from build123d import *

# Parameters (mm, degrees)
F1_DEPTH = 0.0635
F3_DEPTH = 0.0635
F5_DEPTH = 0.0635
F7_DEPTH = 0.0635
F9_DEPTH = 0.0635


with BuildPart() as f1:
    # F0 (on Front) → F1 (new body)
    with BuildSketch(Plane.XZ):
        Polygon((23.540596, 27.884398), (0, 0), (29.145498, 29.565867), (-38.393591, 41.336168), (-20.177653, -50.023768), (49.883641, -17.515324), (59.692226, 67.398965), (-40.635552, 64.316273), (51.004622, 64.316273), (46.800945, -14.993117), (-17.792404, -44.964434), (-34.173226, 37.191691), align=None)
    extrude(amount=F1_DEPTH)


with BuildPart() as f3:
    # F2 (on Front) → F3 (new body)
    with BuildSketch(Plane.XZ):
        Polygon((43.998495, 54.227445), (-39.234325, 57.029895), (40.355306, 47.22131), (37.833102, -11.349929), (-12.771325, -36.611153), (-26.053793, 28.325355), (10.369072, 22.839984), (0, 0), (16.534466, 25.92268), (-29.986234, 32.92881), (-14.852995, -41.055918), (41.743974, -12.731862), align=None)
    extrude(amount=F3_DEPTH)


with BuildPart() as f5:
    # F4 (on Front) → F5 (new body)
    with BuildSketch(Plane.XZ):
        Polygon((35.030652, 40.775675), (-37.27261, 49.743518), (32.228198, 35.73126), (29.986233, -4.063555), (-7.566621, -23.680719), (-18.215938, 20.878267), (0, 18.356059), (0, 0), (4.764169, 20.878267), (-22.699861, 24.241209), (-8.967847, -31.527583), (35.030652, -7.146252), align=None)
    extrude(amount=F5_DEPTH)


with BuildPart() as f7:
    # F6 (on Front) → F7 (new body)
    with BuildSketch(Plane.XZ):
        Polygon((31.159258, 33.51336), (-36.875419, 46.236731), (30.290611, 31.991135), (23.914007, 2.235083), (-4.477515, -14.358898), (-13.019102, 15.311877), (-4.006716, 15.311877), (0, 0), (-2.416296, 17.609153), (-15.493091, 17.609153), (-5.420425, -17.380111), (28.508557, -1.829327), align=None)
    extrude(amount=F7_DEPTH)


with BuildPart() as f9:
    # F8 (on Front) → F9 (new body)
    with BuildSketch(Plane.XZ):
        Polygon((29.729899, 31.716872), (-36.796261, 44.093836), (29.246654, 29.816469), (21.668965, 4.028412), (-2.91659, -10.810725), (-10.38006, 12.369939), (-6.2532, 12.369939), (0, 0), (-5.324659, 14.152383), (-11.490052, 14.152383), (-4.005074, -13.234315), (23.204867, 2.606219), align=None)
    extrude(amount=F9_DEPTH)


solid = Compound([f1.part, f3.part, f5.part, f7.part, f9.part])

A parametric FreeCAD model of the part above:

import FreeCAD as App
import Part
import Sketcher
from FreeCAD import Vector
Q = App.Units.Quantity


def add_polygon(sketch, points):
    """Adds a closed chain of lines whose ends are joined by coincident constraints."""
    first, n = sketch.GeometryCount, len(points)
    for a, b in zip(points, points[1:] + points[:1]):
        sketch.addGeometry(Part.LineSegment(App.Vector(*a, 0), App.Vector(*b, 0)), False)
    for i in range(n):
        sketch.addConstraint(Sketcher.Constraint("Coincident", first + i, 2, first + (i + 1) % n, 1))

doc = App.newDocument("Part")
body = doc.addObject("PartDesign::Body", "Body")

# Sketch on XZ plane
sketch1 = body.newObject("Sketcher::SketchObject", "Sketch")
sketch1.AttachmentSupport = (doc.getObject("XZ_Plane"), [""])
sketch1.MapMode = "FlatFace"
add_polygon(sketch1, [(24, 28), (0, 0), (29, 30), (-38, 41), (-20, -50), (50, -18), (60, 67), (-41, 64), (51, 64), (47, -15), (-18, -45), (-34, 37)])  # lines 0-11
sketch1.addConstraint([
    Sketcher.Constraint("Horizontal", 7),
    Sketcher.Constraint("Coincident", 0, 2, -1, 1),
    Sketcher.Constraint("Parallel", 4, 9),
    Sketcher.Constraint("Parallel", 3, 10),
    Sketcher.Constraint("DistanceX", -1, 1, 1, 2, Q("29.145498 mm")),
    Sketcher.Constraint("DistanceY", -1, 1, 11, 2, Q("27.884398 mm")),
    Sketcher.Constraint("DistanceY", 1, 2, 2, 2, Q("11.770301 mm")),
    Sketcher.Constraint("DistanceY", 1, 2, 5, 2, Q("37.833098 mm")),
    Sketcher.Constraint("DistanceX", 6, 2, 3, 2, Q("20.457899 mm")),
    Sketcher.Constraint("DistanceX", 3, 2, 8, 2, Q("66.978598 mm")),
    Sketcher.Constraint("DistanceY", 9, 2, 1, 2, Q("74.530301 mm")),
    Sketcher.Constraint("DistanceX", 11, 2, 1, 2, Q("5.604902 mm")),
    Sketcher.Constraint("Distance", 1, Q("41.516268 mm")),
    Sketcher.Constraint("Distance", 9, Q("71.208009 mm")),
    Sketcher.Constraint("Distance", 11, Q("58.459481 mm")),
    Sketcher.Constraint("DistanceX", 7, 1, 7, 2, Q("91.640174 mm")),
    Sketcher.Constraint("DistanceX", 2, 2, -1, 1, Q("38.393591 mm")),
    Sketcher.Constraint("DistanceX", -1, 1, 4, 2, Q("49.883641 mm")),
    Sketcher.Constraint("DistanceX", 6, 2, -1, 1, Q("40.635552 mm")),
    Sketcher.Constraint("DistanceY", -1, 1, 10, 2, Q("37.191691 mm")),
    Sketcher.Constraint("DistanceY", 4, 2, 1, 2, Q("47.081191 mm")),
    Sketcher.Constraint("DistanceX", 3, 2, 5, 2, Q("79.869879 mm")),
    Sketcher.Constraint("DistanceY", 3, 2, 6, 2, Q("114.340041 mm")),
])
pad1 = body.newObject("PartDesign::Pad", "Pad")
pad1.Profile = sketch1
pad1.Length = 0.0635
body2 = doc.addObject("PartDesign::Body", "Body001")

# Sketch on XZ plane
sketch2 = body2.newObject("Sketcher::SketchObject", "Sketch001")
sketch2.AttachmentSupport = (doc.getObject("XZ_Plane001"), [""])
sketch2.MapMode = "FlatFace"
add_polygon(sketch2, [(44, 54), (-39, 57), (40, 47), (38, -11), (-13, -37), (-26, 28), (10, 23), (0, 0), (17, 26), (-30, 33), (-15, -41), (42, -13)])  # lines 0-11
sketch2.addConstraint([
    Sketcher.Constraint("Coincident", 6, 2, -1, 1),
    Sketcher.Constraint("Parallel", 5, 8),
    Sketcher.Constraint("Parallel", 4, 9),
    Sketcher.Constraint("Perpendicular", 0, 11),
    Sketcher.Constraint("DistanceX", 0, 2, 3, 2, Q("26.463 mm")),
    Sketcher.Constraint("DistanceX", -1, 1, 2, 2, Q("37.833102 mm")),
    Sketcher.Constraint("DistanceX", 4, 2, 1, 2, Q("66.409099 mm")),
    Sketcher.Constraint("DistanceX", 8, 2, 7, 2, Q("46.5207 mm")),
    Sketcher.Constraint("DistanceX", 3, 2, 10, 2, Q("54.515299 mm")),
    Sketcher.Constraint("Distance", 2, Q("58.62552 mm")),
    Sketcher.Constraint("Distance", 3, Q("56.55915 mm")),
    Sketcher.Constraint("Distance", 6, Q("25.083511 mm")),
    Sketcher.Constraint("Distance", 11, Q("66.997251 mm")),
    Sketcher.Constraint("DistanceY", -1, 1, 1, 2, Q("47.22131 mm")),
    Sketcher.Constraint("DistanceY", 2, 2, -1, 1, Q("11.349929 mm")),
    Sketcher.Constraint("DistanceX", -1, 1, 5, 2, Q("10.369072 mm")),
    Sketcher.Constraint("DistanceY", -1, 1, 7, 2, Q("25.92268 mm")),
    Sketcher.Constraint("DistanceY", -1, 1, 8, 2, Q("32.92881 mm")),
    Sketcher.Constraint("DistanceX", 0, 2, 1, 2, Q("79.589631 mm")),
    Sketcher.Constraint("DistanceY", 3, 2, 0, 2, Q("93.641048 mm")),
    Sketcher.Constraint("DistanceX", 7, 2, 1, 2, Q("23.82084 mm")),
    Sketcher.Constraint("DistanceX", 9, 2, 3, 2, Q("2.08167 mm")),
    Sketcher.Constraint("DistanceY", 3, 2, 10, 2, Q("23.879291 mm")),
])
pad2 = body2.newObject("PartDesign::Pad", "Pad001")
pad2.Profile = sketch2
pad2.Length = 0.0635
body3 = doc.addObject("PartDesign::Body", "Body002")

# Sketch on XZ plane
sketch3 = body3.newObject("Sketcher::SketchObject", "Sketch002")
sketch3.AttachmentSupport = (doc.getObject("XZ_Plane002"), [""])
sketch3.MapMode = "FlatFace"
add_polygon(sketch3, [(35, 41), (-37, 50), (32, 36), (30, -4), (-8, -24), (-18, 21), (0, 18), (0, 0), (5, 21), (-23, 24), (-9, -32), (35, -7)])  # lines 0-11
sketch3.addConstraint([
    Sketcher.Constraint("Vertical", 6),
    Sketcher.Constraint("Vertical", 11),
    Sketcher.Constraint("Coincident", 6, 2, -1, 1),
    Sketcher.Constraint("Horizontal", 4, 2, 7, 2),
    Sketcher.Constraint("DistanceY", 6, 2, 6, 1, Q("18.356059 mm")),
    Sketcher.Constraint("DistanceY", 5, 2, 1, 2, Q("17.375201 mm")),
    Sketcher.Constraint("Distance", 2, Q("39.857919 mm")),
    Sketcher.Constraint("Distance", 3, Q("42.36803 mm")),
    Sketcher.Constraint("Distance", 8, Q("27.669158 mm")),
    Sketcher.Constraint("Distance", 9, Q("57.43454 mm")),
    Sketcher.Constraint("Distance", 10, Q("50.302259 mm")),
    Sketcher.Constraint("DistanceY", 11, 1, 11, 2, Q("47.921927 mm")),
    Sketcher.Constraint("DistanceX", 0, 2, -1, 1, Q("37.27261 mm")),
    Sketcher.Constraint("DistanceY", -1, 1, 0, 2, Q("49.743518 mm")),
    Sketcher.Constraint("DistanceX", 3, 2, -1, 1, Q("7.566621 mm")),
    Sketcher.Constraint("DistanceY", 3, 2, -1, 1, Q("23.680719 mm")),
    Sketcher.Constraint("DistanceX", 4, 2, -1, 1, Q("18.215938 mm")),
    Sketcher.Constraint("DistanceX", -1, 1, 7, 2, Q("4.764169 mm")),
    Sketcher.Constraint("DistanceX", 8, 2, -1, 1, Q("22.699861 mm")),
    Sketcher.Constraint("DistanceY", -1, 1, 8, 2, Q("24.241209 mm")),
    Sketcher.Constraint("DistanceY", 10, 2, -1, 1, Q("7.146252 mm")),
    Sketcher.Constraint("DistanceX", 0, 2, 1, 2, Q("69.500808 mm")),
    Sketcher.Constraint("DistanceX", 9, 2, 2, 2, Q("38.95408 mm")),
])
pad3 = body3.newObject("PartDesign::Pad", "Pad002")
pad3.Profile = sketch3
pad3.Length = 0.0635
body4 = doc.addObject("PartDesign::Body", "Body003")

# Sketch on XZ plane
sketch4 = body4.newObject("Sketcher::SketchObject", "Sketch003")
sketch4.AttachmentSupport = (doc.getObject("XZ_Plane003"), [""])
sketch4.MapMode = "FlatFace"
add_polygon(sketch4, [(31, 34), (-37, 46), (30, 32), (24, 2), (-4, -14), (-13, 15), (-4, 15), (0, 0), (-2, 18), (-15, 18), (-5, -17), (29, -2)])  # lines 0-11
sketch4.addConstraint([
    Sketcher.Constraint("Horizontal", 5),
    Sketcher.Constraint("Horizontal", 8),
    Sketcher.Constraint("Coincident", 6, 2, -1, 1),
    Sketcher.Constraint("Parallel", 4, 9),
    Sketcher.Constraint("Angle", 4, Q("106.059988 deg")),
    Sketcher.Constraint("DistanceX", 3, 2, 5, 2, Q("0.470799 mm")),
    Sketcher.Constraint("DistanceX", 10, 2, 11, 2, Q("2.650701 mm")),
    Sketcher.Constraint("Distance", 0, Q("69.214171 mm")),
    Sketcher.Constraint("Distance", 7, Q("17.77416 mm")),
    Sketcher.Constraint("Distance", 10, Q("37.322951 mm")),
    Sketcher.Constraint("Distance", 11, Q("35.441949 mm")),
    Sketcher.Constraint("DistanceX", 5, 1, 5, 2, Q("9.012386 mm")),
    Sketcher.Constraint("DistanceX", 8, 2, 8, 1, Q("13.076795 mm")),
    Sketcher.Constraint("DistanceX", 0, 2, -1, 1, Q("36.875419 mm")),
    Sketcher.Constraint("DistanceY", -1, 1, 0, 2, Q("46.236731 mm")),
    Sketcher.Constraint("DistanceX", -1, 1, 1, 2, Q("30.290611 mm")),
    Sketcher.Constraint("DistanceX", 8, 2, -1, 1, Q("15.493091 mm")),
    Sketcher.Constraint("DistanceY", 9, 2, -1, 1, Q("17.380111 mm")),
    Sketcher.Constraint("DistanceY", 3, 2, 2, 2, Q("16.593981 mm")),
    Sketcher.Constraint("DistanceY", 3, 2, 0, 2, Q("60.595629 mm")),
    Sketcher.Constraint("DistanceX", 4, 2, 2, 2, Q("36.933109 mm")),
    Sketcher.Constraint("DistanceX", 5, 2, 7, 2, Q("1.59042 mm")),
    Sketcher.Constraint("Distance", 1, Q("68.660124 mm")),
])
pad4 = body4.newObject("PartDesign::Pad", "Pad003")
pad4.Profile = sketch4
pad4.Length = 0.0635
body5 = doc.addObject("PartDesign::Body", "Body004")

# Sketch on XZ plane
sketch5 = body5.newObject("Sketcher::SketchObject", "Sketch004")
sketch5.AttachmentSupport = (doc.getObject("XZ_Plane004"), [""])
sketch5.MapMode = "FlatFace"
add_polygon(sketch5, [(29.7, 31.7), (-36.8, 44.1), (29.2, 29.8), (21.7, 4), (-2.9, -10.8), (-10.4, 12.4), (-6.3, 12.4), (0, 0), (-5.3, 14.2), (-11.5, 14.2), (-4, -13.2), (23.2, 2.6)])  # lines 0-11
sketch5.addConstraint([
    Sketcher.Constraint("Horizontal", 5),
    Sketcher.Constraint("Horizontal", 8),
    Sketcher.Constraint("Coincident", 6, 2, -1, 1),
    Sketcher.Constraint("DistanceX", 5, 1, 5, 2, Q("4.12686 mm")),
    Sketcher.Constraint("DistanceX", 5, 2, -1, 1, Q("6.2532 mm")),
    Sketcher.Constraint("DistanceX", -1, 1, 11, 2, Q("29.729899 mm")),
    Sketcher.Constraint("DistanceX", 0, 2, 4, 2, Q("26.416201 mm")),
    Sketcher.Constraint("DistanceX", 4, 2, 7, 2, Q("5.055401 mm")),
    Sketcher.Constraint("DistanceY", 9, 2, 7, 2, Q("27.386698 mm")),
    Sketcher.Constraint("Distance", 0, Q("67.667712 mm")),
    Sketcher.Constraint("Distance", 2, Q("26.878342 mm")),
    Sketcher.Constraint("Distance", 3, Q("28.716711 mm")),
    Sketcher.Constraint("Distance", 6, Q("13.86066 mm")),
    Sketcher.Constraint("Distance", 7, Q("15.120911 mm")),
    Sketcher.Constraint("Distance", 10, Q("31.484971 mm")),
    Sketcher.Constraint("Distance", 11, Q("29.832971 mm")),
    Sketcher.Constraint("DistanceX", 8, 2, 8, 1, Q("6.165393 mm")),
    Sketcher.Constraint("DistanceY", -1, 1, 1, 2, Q("29.816469 mm")),
    Sketcher.Constraint("DistanceX", 3, 2, -1, 1, Q("2.91659 mm")),
    Sketcher.Constraint("DistanceY", -1, 1, 10, 2, Q("2.606219 mm")),
    Sketcher.Constraint("DistanceY", -1, 1, 11, 2, Q("31.716872 mm")),
    Sketcher.Constraint("DistanceX", 2, 2, 1, 2, Q("7.577689 mm")),
    Sketcher.Constraint("DistanceY", 3, 2, 0, 2, Q("54.904561 mm")),
])
pad5 = body5.newObject("PartDesign::Pad", "Pad004")
pad5.Profile = sketch5
pad5.Length = 0.0635

doc.recompute()
